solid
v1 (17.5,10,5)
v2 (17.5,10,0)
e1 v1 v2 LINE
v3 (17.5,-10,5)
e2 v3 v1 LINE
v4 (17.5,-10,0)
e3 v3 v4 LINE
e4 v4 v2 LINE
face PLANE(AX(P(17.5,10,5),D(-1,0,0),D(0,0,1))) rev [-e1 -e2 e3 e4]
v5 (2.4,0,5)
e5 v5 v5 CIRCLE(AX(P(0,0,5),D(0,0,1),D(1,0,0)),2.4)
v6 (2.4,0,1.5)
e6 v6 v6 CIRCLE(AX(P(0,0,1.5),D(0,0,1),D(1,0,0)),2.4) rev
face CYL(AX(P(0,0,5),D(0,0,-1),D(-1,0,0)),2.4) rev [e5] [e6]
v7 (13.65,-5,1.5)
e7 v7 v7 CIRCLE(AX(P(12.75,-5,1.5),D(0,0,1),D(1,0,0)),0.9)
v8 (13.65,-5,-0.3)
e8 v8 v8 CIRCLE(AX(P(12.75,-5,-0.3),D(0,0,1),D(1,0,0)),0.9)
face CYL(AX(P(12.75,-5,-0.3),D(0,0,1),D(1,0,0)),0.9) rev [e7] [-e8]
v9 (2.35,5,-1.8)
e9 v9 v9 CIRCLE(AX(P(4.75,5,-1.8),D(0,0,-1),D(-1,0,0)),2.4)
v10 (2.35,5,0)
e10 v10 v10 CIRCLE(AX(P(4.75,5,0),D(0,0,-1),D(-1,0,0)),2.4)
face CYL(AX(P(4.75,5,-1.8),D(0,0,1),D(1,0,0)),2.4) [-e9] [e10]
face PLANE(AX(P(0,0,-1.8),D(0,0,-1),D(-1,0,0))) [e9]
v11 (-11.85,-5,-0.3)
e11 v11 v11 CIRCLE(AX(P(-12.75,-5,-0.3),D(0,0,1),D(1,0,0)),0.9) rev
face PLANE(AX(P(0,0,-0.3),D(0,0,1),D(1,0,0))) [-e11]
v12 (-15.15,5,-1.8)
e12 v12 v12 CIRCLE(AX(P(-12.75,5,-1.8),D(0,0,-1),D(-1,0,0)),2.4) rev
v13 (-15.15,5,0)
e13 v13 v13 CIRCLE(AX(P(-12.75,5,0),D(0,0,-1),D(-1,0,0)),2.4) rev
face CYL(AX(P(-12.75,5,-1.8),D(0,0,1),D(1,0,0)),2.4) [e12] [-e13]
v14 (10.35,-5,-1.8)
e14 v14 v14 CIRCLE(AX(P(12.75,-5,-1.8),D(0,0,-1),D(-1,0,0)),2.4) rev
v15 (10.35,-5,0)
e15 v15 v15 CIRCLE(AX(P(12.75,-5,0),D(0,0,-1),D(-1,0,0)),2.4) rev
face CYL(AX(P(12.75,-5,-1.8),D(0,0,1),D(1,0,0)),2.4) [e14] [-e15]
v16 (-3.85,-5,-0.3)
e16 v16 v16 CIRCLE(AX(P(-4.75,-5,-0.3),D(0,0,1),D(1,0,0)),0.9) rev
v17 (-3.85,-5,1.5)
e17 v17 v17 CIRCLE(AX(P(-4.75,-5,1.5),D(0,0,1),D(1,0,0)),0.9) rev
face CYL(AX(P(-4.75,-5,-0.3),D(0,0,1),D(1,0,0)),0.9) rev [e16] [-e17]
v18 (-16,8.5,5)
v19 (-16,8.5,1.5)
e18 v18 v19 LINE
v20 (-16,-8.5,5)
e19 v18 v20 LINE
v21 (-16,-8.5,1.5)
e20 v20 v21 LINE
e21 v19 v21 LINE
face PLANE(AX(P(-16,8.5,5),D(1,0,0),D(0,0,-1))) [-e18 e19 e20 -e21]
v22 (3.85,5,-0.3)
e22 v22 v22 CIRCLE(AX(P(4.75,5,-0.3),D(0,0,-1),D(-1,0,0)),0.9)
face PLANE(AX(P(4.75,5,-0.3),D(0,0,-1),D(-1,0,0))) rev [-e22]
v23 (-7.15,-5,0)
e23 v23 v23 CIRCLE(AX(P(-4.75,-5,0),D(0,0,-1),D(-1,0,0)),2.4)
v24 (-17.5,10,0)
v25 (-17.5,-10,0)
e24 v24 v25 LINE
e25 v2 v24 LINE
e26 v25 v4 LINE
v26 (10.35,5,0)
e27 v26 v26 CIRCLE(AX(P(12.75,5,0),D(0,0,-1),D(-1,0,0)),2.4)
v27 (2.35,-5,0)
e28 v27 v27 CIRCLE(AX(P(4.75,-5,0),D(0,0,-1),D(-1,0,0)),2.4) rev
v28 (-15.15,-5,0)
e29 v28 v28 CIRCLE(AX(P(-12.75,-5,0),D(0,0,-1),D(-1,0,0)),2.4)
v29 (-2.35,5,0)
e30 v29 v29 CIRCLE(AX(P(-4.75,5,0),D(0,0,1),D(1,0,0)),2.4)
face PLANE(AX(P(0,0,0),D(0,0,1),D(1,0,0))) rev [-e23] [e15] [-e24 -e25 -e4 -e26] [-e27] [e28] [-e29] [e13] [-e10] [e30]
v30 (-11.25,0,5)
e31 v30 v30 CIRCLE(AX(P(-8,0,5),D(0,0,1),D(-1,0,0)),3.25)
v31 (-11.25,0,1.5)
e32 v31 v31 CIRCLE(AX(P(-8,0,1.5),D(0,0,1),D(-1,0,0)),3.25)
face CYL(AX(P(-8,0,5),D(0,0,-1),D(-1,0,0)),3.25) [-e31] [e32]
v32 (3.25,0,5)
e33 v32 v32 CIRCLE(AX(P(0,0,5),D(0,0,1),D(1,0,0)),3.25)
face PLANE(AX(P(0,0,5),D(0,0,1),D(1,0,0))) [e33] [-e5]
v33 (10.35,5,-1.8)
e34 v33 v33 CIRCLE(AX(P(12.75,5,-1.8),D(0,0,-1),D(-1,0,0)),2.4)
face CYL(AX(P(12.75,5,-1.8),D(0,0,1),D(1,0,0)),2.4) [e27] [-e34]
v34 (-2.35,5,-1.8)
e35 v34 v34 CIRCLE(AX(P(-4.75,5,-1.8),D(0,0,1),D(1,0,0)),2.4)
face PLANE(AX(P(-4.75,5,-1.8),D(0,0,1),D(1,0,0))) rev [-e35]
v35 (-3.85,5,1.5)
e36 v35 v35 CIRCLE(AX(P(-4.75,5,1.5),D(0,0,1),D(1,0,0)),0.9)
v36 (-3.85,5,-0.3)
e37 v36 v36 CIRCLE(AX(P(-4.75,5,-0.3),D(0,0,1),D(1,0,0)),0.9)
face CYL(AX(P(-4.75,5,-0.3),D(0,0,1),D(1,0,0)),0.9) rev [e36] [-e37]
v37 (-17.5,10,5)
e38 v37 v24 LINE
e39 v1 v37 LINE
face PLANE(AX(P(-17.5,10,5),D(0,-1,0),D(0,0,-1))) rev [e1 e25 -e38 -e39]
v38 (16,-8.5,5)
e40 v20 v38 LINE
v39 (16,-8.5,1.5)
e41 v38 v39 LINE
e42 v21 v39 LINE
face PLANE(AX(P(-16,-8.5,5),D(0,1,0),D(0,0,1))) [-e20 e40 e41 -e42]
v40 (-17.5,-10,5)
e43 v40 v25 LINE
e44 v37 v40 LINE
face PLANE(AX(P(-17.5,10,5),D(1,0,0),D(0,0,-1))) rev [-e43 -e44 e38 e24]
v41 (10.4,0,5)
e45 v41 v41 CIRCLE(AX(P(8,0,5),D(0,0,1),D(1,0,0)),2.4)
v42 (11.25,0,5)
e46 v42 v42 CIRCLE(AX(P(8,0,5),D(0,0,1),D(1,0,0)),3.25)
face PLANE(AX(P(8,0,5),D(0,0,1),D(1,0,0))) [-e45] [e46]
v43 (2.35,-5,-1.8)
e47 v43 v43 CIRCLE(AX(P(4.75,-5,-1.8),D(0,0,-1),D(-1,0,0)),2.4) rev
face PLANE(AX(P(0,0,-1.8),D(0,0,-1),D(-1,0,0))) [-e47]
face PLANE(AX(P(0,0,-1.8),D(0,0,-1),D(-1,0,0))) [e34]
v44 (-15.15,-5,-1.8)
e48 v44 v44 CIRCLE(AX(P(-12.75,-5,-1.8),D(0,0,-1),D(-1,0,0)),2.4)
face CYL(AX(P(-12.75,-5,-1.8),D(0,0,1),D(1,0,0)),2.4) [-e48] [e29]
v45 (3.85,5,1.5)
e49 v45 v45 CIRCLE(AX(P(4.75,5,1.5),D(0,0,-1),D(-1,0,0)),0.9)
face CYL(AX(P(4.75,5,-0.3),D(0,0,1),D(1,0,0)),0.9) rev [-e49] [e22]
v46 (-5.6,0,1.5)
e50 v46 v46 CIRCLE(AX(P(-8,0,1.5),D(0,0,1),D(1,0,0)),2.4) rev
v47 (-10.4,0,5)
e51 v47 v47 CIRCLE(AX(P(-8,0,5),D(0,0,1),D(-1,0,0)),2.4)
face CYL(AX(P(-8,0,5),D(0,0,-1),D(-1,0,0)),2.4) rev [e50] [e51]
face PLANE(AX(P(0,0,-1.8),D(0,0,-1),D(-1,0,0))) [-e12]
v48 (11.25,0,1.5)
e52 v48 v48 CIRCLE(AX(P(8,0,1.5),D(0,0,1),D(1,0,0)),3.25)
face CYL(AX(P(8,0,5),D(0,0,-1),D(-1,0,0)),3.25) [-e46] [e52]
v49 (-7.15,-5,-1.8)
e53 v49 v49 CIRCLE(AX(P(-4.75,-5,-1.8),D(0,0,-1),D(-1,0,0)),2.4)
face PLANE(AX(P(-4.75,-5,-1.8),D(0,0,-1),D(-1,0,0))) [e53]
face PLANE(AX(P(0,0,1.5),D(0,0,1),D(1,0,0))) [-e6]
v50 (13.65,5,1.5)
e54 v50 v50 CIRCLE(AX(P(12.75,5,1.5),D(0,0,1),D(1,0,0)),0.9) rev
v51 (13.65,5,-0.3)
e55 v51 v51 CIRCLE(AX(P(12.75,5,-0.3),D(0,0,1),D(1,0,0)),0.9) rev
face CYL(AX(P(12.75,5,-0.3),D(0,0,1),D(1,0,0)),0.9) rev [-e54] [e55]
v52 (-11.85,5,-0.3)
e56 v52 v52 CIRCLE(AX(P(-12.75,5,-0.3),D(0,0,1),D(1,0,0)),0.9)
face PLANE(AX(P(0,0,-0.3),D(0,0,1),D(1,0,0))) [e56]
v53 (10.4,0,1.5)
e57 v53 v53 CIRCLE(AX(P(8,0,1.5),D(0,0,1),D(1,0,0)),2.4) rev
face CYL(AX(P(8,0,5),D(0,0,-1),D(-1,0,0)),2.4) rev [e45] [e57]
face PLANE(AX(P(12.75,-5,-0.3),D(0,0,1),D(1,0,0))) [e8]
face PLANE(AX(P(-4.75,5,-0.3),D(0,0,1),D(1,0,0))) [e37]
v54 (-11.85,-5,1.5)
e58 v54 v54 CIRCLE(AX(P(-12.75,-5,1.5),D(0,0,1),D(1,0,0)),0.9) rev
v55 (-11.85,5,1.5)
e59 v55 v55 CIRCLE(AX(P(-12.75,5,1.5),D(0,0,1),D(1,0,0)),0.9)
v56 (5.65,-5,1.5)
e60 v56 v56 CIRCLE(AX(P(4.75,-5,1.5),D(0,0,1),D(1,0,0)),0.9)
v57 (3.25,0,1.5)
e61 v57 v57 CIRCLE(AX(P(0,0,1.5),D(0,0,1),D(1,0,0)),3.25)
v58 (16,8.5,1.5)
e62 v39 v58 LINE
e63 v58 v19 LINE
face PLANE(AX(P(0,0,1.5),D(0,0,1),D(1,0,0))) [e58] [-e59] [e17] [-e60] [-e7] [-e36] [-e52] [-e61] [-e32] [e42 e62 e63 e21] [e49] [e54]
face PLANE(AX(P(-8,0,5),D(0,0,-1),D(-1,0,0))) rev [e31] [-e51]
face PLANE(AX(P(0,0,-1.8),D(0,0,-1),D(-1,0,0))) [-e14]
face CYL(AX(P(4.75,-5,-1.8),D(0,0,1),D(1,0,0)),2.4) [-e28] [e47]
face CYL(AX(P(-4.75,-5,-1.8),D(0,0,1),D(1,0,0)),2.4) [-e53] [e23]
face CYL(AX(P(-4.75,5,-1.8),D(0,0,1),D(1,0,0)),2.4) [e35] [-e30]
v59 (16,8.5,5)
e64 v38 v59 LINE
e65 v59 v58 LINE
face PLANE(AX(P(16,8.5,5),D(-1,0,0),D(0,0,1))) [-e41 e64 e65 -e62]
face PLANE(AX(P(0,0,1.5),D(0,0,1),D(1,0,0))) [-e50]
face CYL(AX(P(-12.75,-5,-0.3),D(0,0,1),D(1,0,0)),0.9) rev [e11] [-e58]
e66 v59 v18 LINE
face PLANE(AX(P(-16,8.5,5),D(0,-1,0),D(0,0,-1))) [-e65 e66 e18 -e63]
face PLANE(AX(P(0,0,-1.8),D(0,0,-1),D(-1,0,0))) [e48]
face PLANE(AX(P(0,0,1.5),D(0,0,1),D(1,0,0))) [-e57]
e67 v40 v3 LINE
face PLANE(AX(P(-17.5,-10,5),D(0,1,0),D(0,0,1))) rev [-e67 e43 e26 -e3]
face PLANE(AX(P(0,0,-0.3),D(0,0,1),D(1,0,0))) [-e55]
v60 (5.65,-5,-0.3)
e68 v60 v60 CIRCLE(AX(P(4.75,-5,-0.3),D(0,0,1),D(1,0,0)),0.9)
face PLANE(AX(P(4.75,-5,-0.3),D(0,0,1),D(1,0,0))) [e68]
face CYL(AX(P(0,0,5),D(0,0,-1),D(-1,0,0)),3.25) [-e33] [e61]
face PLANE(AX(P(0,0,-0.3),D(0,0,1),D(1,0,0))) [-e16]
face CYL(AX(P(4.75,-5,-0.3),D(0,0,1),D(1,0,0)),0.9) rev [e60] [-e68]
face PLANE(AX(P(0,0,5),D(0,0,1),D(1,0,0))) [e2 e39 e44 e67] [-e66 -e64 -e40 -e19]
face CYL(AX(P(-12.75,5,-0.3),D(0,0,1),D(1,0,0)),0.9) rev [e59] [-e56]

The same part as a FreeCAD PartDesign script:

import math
import FreeCAD as App
import Part
import Sketcher


def add_polygon(sketch, points):
    """Adds a closed chain of lines whose ends are joined by coincident constraints."""
    first, n = sketch.GeometryCount, len(points)
    for a, b in zip(points, points[1:] + points[:1]):
        sketch.addGeometry(Part.LineSegment(App.Vector(*a, 0), App.Vector(*b, 0)), False)
    for i in range(n):
        sketch.addConstraint(Sketcher.Constraint("Coincident", first + i, 2, first + (i + 1) % n, 1))

doc = App.newDocument("Part")
body = doc.addObject("PartDesign::Body", "Body")

sketch1 = body.newObject("Sketcher::SketchObject", "Sketch")
sketch1.AttachmentSupport = (doc.getObject("XY_Plane"), [""])
sketch1.MapMode = "FlatFace"
add_polygon(sketch1, [(-17.5, 10), (-17.5, -10), (17.5, -10), (17.5, 10)])
add_polygon(sketch1, [(16, -8.5), (-16, -8.5), (-16, 8.5), (16, 8.5)])
sketch1.addConstraint([
    Sketcher.Constraint("Vertical", 0),
    Sketcher.Constraint("Horizontal", 1),
    Sketcher.Constraint("Vertical", 2),
    Sketcher.Constraint("Horizontal", 3),
    Sketcher.Constraint("Horizontal", 4),
    Sketcher.Constraint("Vertical", 5),
    Sketcher.Constraint("Horizontal", 6),
    Sketcher.Constraint("Vertical", 7),
    Sketcher.Constraint("Symmetric", 0, 2, 2, 2, -1, 1),
    Sketcher.Constraint("Symmetric", 4, 2, 6, 2, -1, 1),
    Sketcher.Constraint("DistanceX", 1, 1, 1, 2, 35.0),
    Sketcher.Constraint("DistanceX", 4, 2, 4, 1, 32.0),
    Sketcher.Constraint("DistanceY", 0, 2, 0, 1, 20.0),
    Sketcher.Constraint("DistanceY", 5, 1, 5, 2, 17.0),
])
pad1 = body.newObject("PartDesign::Pad", "Pad")
pad1.Profile = sketch1
pad1.Length = 5

sketch2 = body.newObject("Sketcher::SketchObject", "Sketch001")
sketch2.AttachmentSupport = (doc.getObject("XY_Plane"), [""])
sketch2.MapMode = "FlatFace"
add_polygon(sketch2, [(-16, 8.5), (-16, -8.5), (16, -8.5), (16, 8.5)])
sketch2.addConstraint([
    Sketcher.Constraint("Vertical", 0),
    Sketcher.Constraint("Horizontal", 1),
    Sketcher.Constraint("Vertical", 2),
    Sketcher.Constraint("Horizontal", 3),
    Sketcher.Constraint("Symmetric", 0, 2, 2, 2, -1, 1),
    Sketcher.Constraint("DistanceX", 1, 1, 1, 2, 32.0),
    Sketcher.Constraint("DistanceY", 0, 2, 0, 1, 17.0),
])
pad2 = body.newObject("PartDesign::Pad", "Pad001")
pad2.Profile = sketch2
pad2.Length = 1.5

sketch3 = body.newObject("Sketcher::SketchObject", "Sketch002")
sketch3.AttachmentSupport = (doc.getObject("XY_Plane"), [""])
sketch3.MapMode = "FlatFace"
sketch3.addGeometry([
    Part.ArcOfCircle(Part.Circle(App.Vector(-12.75, -5, 0), App.Vector(0, 0, 1), 2.4), math.radians(90), math.radians(180)),
    Part.ArcOfCircle(Part.Circle(App.Vector(-12.75, -5, 0), App.Vector(0, 0, 1), 2.4), math.radians(0), math.radians(90)),
    Part.ArcOfCircle(Part.Circle(App.Vector(-12.75, -5, 0), App.Vector(0, 0, 1), 2.4), math.radians(-90), math.radians(0)),
    Part.ArcOfCircle(Part.Circle(App.Vector(-12.75, -5, 0), App.Vector(0, 0, 1), 2.4), math.radians(180), math.radians(270)),
    Part.Circle(App.Vector(-12.75, 5, 0), App.Vector(0, 0, 1), 2.4),
    Part.Circle(App.Vector(4.75, 5, 0), App.Vector(0, 0, 1), 2.4),
    Part.Circle(App.Vector(4.75, -5, 0), App.Vector(0, 0, 1), 2.4),
    Part.Circle(App.Vector(12.75, -5, 0), App.Vector(0, 0, 1), 2.4),
    Part.Circle(App.Vector(12.75, 5, 0), App.Vector(0, 0, 1), 2.4),
    Part.Circle(App.Vector(-4.75, -5, 0), App.Vector(0, 0, 1), 2.4),
    Part.Circle(App.Vector(-4.75, 5, 0), App.Vector(0, 0, 1), 2.4),
], False)
sketch3.addConstraint([
    Sketcher.Constraint("Tangent", 0, 1, 1, 2),
    Sketcher.Constraint("Tangent", 1, 1, 2, 2),
    Sketcher.Constraint("Tangent", 2, 1, 3, 2),
    Sketcher.Constraint("Tangent", 3, 1, 0, 2),
    Sketcher.Constraint("Equal", 0, 1),
    Sketcher.Constraint("Equal", 3, 4),
    Sketcher.Constraint("Equal", 4, 5),
    Sketcher.Constraint("Equal", 5, 6),
    Sketcher.Constraint("Equal", 6, 7),
    Sketcher.Constraint("Equal", 7, 8),
    Sketcher.Constraint("Equal", 8, 9),
    Sketcher.Constraint("Equal", 9, 10),
    Sketcher.Constraint("Symmetric", 4, 3, 7, 3, -1, 1),
    Sketcher.Constraint("Symmetric", 0, 3, 8, 3, -1, 1),
    Sketcher.Constraint("Symmetric", 5, 3, 9, 3, -1, 1),
    Sketcher.Constraint("Symmetric", 6, 3, 10, 3, -1, 1),
    Sketcher.Constraint("Symmetric", 0, 3, 7, 3, -2),
    Sketcher.Constraint("Symmetric", 6, 3, 9, 3, -2),
    Sketcher.Constraint("Horizontal", 4, 3, 5, 3),
    Sketcher.Constraint("Horizontal", 9, 3, 1, 1),
    Sketcher.Constraint("Horizontal", 1, 1, 3, 1),
    Sketcher.Constraint("Vertical", 4, 3, 0, 1),
    Sketcher.Constraint("Vertical", 0, 1, 2, 1),
    Sketcher.Constraint("Diameter", 4, 4.8),
    Sketcher.Constraint("DistanceY", 0, 3, -1, 1, 5.0),
    Sketcher.Constraint("DistanceX", 6, 3, 7, 3, 8.0),
    Sketcher.Constraint("DistanceX", 4, 3, 5, 3, 17.5),
])
pad3 = body.newObject("PartDesign::Pad", "Pad002")
pad3.Profile = sketch3
pad3.Length = 1.8
pad3.Reversed = True

sketch4 = body.newObject("Sketcher::SketchObject", "Sketch003")
sketch4.AttachmentSupport = (doc.getObject("XY_Plane"), [""])
sketch4.MapMode = "FlatFace"
sketch4.AttachmentOffset = App.Placement(App.Vector(0, 0, 1.5), App.Rotation())
sketch4.addGeometry([
    Part.Circle(App.Vector(0, 0, 0), App.Vector(0, 0, 1), 3.25),
    Part.Circle(App.Vector(0, 0, 0), App.Vector(0, 0, 1), 2.4),
    Part.Circle(App.Vector(8, 0, 0), App.Vector(0, 0, 1), 3.25),
    Part.Circle(App.Vector(8, 0, 0), App.Vector(0, 0, 1), 2.4),
    Part.Circle(App.Vector(-8, 0, 0), App.Vector(0, 0, 1), 3.25),
    Part.Circle(App.Vector(-8, 0, 0), App.Vector(0, 0, 1), 2.4),
], False)
sketch4.addConstraint([
    Sketcher.Constraint("Coincident", 0, 3, -1, 1),
    Sketcher.Constraint("Coincident", 1, 3, -1, 1),
    Sketcher.Constraint("Coincident", 3, 3, 2, 3),
    Sketcher.Constraint("Coincident", 5, 3, 4, 3),
    Sketcher.Constraint("Equal", 0, 2),
    Sketcher.Constraint("Equal", 1, 3),
    Sketcher.Constraint("Equal", 2, 4),
    Sketcher.Constraint("Equal", 3, 5),
    Sketcher.Constraint("Symmetric", 2, 3, 4, 3, -1, 1),
    Sketcher.Constraint("PointOnObject", 2, 3, -1),
    Sketcher.Constraint("Diameter", 0, 6.5),
    Sketcher.Constraint("Diameter", 1, 4.8),
    Sketcher.Constraint("DistanceX", -1, 1, 2, 3, 8.0),
])
pad4 = body.newObject("PartDesign::Pad", "Pad003")
pad4.Profile = sketch4
pad4.Length = 3.5

sketch5 = body.newObject("Sketcher::SketchObject", "Sketch004")
sketch5.AttachmentSupport = (doc.getObject("XY_Plane"), [""])
sketch5.MapMode = "FlatFace"
sketch5.AttachmentOffset = App.Placement(App.Vector(0, 0, 1.5), App.Rotation())
sketch5.addGeometry([
    Part.Circle(App.Vector(12.75, 5, 0), App.Vector(0, 0, 1), 0.9),
    Part.Circle(App.Vector(-12.75, 5, 0), App.Vector(0, 0, 1), 0.9),
    Part.Circle(App.Vector(-12.75, -5, 0), App.Vector(0, 0, 1), 0.9),
    Part.Circle(App.Vector(-4.75, -5, 0), App.Vector(0, 0, 1), 0.9),
    Part.Circle(App.Vector(12.75, -5, 0), App.Vector(0, 0, 1), 0.9),
    Part.Circle(App.Vector(4.75, 5, 0), App.Vector(0, 0, 1), 0.9),
    Part.Circle(App.Vector(-4.75, 5, 0), App.Vector(0, 0, 1), 0.9),
    Part.Circle(App.Vector(4.75, -5, 0), App.Vector(0, 0, 1), 0.9),
], False)
sketch5.addConstraint([
    Sketcher.Constraint("Equal", 0, 1),
    Sketcher.Constraint("Equal", 1, 2),
    Sketcher.Constraint("Equal", 2, 3),
    Sketcher.Constraint("Equal", 3, 4),
    Sketcher.Constraint("Equal", 4, 5),
    Sketcher.Constraint("Equal", 5, 6),
    Sketcher.Constraint("Equal", 6, 7),
    Sketcher.Constraint("Symmetric", 0, 3, 2, 3, -1, 1),
    Sketcher.Constraint("Symmetric", 1, 3, 4, 3, -1, 1),
    Sketcher.Constraint("Symmetric", 3, 3, 5, 3, -1, 1),
    Sketcher.Constraint("Symmetric", 6, 3, 7, 3, -1, 1),
    Sketcher.Constraint("Symmetric", 0, 3, 1, 3, -2),
    Sketcher.Constraint("Symmetric", 5, 3, 6, 3, -2),
    Sketcher.Constraint("Horizontal", 2, 3, 3, 3),
    Sketcher.Constraint("Diameter", 0, 1.8),
    Sketcher.Constraint("DistanceY", -1, 1, 0, 3, 5.0),
    Sketcher.Constraint("DistanceX", 2, 3, 3, 3, 8.0),
    Sketcher.Constraint("DistanceX", 1, 3, 0, 3, 25.5),
])
pocket1 = body.newObject("PartDesign::Pocket", "Pocket")
pocket1.Profile = sketch5
pocket1.Length = 1.8

doc.recompute()
